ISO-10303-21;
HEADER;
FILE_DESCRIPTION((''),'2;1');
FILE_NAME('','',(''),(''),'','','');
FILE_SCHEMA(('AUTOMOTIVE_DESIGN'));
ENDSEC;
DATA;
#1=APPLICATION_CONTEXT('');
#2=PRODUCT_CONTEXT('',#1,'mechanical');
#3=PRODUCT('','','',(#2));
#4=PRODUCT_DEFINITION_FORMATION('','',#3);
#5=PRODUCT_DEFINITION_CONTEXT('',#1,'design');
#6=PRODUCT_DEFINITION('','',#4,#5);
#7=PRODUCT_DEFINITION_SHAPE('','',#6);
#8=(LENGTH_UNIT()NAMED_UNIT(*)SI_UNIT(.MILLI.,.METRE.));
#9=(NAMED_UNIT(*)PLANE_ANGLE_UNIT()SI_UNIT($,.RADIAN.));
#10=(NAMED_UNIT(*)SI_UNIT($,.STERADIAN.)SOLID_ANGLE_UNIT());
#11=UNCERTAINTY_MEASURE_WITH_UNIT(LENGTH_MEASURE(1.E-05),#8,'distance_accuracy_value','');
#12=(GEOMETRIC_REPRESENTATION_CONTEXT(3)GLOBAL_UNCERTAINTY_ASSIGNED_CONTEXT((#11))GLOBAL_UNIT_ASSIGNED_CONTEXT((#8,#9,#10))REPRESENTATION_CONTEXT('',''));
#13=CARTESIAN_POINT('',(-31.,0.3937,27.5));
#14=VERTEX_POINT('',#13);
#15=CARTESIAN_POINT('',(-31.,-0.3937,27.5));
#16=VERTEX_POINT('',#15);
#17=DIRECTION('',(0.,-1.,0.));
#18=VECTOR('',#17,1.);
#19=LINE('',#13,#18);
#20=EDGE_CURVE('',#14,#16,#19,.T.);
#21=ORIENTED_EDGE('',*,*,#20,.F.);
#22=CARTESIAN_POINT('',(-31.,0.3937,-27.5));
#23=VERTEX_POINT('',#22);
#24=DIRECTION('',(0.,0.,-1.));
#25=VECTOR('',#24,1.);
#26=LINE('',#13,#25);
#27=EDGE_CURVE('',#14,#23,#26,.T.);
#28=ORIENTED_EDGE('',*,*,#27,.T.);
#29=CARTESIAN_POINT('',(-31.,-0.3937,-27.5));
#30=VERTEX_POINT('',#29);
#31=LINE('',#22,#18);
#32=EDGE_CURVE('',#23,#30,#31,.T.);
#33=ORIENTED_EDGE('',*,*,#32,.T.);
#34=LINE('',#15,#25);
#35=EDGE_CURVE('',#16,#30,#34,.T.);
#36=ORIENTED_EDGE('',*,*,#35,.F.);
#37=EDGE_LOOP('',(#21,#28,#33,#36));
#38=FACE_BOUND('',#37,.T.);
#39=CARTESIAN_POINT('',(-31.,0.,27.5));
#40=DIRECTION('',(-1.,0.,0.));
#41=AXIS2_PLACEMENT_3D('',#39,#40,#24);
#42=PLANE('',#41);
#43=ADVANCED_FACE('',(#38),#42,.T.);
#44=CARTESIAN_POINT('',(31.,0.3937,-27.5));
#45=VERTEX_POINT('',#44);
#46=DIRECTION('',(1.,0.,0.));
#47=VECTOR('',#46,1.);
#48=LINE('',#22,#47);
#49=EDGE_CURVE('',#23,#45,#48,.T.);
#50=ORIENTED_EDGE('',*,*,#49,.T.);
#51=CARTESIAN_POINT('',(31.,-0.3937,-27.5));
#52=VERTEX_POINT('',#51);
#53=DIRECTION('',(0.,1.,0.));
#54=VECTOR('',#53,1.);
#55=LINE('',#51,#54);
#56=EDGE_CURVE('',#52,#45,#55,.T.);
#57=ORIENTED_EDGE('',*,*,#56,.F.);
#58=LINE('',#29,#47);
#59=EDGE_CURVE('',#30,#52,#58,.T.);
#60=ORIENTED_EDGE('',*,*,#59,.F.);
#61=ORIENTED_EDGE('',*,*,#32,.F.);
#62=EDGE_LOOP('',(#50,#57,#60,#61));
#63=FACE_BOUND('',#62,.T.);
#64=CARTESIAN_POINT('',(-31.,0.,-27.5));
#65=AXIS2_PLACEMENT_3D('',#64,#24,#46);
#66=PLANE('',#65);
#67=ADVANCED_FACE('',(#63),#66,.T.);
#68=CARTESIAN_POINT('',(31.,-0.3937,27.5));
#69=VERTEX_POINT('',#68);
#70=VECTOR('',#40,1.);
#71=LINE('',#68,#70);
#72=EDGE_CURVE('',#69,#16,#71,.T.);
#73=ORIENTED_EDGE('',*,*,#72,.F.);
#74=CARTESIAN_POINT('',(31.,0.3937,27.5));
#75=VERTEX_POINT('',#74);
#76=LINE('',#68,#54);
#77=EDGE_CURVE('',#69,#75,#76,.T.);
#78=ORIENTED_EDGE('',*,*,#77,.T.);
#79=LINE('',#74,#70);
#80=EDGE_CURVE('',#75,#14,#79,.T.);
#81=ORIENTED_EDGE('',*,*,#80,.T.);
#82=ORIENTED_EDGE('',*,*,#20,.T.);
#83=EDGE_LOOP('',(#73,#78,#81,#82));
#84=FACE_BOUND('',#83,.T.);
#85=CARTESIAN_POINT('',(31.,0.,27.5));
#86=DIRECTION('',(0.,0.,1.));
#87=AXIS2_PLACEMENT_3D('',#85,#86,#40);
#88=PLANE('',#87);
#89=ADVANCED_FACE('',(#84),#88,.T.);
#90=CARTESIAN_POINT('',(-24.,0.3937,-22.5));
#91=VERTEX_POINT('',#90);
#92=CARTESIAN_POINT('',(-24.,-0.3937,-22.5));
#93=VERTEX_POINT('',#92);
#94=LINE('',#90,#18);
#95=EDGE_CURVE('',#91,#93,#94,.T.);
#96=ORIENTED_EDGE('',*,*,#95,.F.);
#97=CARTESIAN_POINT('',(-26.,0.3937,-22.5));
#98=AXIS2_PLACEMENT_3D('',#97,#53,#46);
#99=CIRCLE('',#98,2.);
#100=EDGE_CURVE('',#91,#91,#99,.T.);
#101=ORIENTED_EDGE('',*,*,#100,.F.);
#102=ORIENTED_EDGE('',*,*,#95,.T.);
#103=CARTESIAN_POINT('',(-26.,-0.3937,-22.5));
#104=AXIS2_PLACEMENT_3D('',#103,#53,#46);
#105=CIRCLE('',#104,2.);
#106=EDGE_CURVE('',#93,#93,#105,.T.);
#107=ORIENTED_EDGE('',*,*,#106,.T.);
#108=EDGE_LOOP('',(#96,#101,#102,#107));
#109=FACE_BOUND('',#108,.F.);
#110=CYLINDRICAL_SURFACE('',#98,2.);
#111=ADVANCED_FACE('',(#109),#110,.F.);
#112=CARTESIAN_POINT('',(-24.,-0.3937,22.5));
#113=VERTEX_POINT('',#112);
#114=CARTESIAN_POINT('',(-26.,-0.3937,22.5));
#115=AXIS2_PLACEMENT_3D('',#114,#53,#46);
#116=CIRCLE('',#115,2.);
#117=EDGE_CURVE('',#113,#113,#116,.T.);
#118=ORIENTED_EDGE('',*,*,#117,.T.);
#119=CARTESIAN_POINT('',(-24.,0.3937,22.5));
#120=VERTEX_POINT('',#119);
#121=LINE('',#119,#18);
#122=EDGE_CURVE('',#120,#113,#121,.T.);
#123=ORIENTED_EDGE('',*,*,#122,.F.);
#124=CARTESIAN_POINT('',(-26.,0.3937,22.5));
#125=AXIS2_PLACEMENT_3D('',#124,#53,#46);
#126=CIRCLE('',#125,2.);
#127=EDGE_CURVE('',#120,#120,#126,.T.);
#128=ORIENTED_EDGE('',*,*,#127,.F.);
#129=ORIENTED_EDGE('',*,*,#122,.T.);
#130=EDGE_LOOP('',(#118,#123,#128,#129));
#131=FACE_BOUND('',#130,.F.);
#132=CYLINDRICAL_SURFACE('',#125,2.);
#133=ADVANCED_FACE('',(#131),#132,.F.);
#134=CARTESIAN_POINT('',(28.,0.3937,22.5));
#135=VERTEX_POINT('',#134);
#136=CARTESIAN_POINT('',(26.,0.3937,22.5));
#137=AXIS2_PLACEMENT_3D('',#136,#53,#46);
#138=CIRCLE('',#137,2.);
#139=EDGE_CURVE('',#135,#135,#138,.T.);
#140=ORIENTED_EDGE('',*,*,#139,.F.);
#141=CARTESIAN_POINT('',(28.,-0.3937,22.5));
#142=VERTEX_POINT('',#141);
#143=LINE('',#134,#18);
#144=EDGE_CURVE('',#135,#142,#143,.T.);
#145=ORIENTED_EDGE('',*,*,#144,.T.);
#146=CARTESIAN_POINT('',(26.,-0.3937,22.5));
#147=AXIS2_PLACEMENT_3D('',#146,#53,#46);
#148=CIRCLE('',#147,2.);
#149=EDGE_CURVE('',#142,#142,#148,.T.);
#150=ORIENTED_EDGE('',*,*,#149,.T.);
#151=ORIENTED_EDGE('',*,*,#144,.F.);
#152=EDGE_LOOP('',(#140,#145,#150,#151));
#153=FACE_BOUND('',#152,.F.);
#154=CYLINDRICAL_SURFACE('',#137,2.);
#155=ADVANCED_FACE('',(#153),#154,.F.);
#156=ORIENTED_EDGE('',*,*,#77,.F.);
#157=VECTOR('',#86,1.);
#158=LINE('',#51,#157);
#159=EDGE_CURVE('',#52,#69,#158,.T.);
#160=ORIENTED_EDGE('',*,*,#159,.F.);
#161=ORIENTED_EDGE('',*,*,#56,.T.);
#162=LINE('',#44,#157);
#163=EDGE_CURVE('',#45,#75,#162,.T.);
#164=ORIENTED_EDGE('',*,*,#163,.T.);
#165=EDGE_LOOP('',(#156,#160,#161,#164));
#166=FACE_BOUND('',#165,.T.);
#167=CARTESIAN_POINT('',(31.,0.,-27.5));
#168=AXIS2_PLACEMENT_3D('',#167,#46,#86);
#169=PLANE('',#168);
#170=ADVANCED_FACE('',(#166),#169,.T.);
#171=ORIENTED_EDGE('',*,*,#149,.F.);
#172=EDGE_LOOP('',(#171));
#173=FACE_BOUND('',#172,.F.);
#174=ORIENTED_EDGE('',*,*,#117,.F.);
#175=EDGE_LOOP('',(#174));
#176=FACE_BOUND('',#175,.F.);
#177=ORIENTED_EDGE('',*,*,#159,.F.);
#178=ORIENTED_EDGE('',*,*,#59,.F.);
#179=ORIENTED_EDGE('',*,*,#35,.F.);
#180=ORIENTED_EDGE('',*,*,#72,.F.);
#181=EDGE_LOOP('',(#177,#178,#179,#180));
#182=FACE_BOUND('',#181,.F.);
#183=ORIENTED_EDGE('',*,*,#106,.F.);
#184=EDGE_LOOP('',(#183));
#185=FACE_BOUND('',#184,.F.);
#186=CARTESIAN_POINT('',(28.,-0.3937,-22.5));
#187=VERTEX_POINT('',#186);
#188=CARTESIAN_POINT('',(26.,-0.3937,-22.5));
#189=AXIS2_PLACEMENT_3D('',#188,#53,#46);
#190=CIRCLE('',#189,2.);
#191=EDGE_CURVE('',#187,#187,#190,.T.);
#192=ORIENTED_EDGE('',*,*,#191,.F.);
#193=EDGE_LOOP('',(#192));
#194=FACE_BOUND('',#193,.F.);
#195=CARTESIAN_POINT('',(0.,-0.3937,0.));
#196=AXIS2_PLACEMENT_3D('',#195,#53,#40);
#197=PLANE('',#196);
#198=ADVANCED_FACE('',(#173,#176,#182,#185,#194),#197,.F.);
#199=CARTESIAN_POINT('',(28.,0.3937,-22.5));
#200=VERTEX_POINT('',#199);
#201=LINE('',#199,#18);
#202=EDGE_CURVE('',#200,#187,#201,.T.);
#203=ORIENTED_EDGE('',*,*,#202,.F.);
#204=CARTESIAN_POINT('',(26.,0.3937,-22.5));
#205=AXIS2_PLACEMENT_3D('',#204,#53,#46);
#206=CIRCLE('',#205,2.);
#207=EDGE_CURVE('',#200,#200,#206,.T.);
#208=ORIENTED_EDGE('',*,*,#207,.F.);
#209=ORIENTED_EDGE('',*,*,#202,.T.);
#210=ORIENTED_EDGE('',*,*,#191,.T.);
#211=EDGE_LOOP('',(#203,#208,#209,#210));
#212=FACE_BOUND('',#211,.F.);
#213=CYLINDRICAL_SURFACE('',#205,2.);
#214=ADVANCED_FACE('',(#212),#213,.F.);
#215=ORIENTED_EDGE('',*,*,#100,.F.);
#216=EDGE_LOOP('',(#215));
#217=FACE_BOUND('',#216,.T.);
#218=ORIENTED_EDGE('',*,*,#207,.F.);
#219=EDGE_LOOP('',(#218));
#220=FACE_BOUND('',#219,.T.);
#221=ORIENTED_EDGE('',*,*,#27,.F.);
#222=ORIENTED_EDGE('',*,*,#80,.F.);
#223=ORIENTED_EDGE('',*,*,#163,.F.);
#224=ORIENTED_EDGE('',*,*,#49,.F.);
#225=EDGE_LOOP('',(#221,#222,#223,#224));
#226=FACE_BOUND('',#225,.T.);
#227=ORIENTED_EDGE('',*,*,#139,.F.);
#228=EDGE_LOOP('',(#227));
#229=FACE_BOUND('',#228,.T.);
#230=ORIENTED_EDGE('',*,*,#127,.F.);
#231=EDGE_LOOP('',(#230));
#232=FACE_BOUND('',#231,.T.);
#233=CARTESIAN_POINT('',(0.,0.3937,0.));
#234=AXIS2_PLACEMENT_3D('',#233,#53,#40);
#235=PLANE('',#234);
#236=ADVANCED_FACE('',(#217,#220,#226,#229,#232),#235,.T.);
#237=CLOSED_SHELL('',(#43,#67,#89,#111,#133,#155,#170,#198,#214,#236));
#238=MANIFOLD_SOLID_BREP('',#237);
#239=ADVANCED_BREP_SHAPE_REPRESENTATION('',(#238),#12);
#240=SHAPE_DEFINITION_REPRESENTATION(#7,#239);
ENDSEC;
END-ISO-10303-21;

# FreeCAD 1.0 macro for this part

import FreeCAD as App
import Part
import Sketcher

V = App.Vector
Q = App.Units.Quantity


def add_polygon(sketch, points):
    """Adds a closed chain of lines whose ends are joined by coincident constraints."""
    first, n = sketch.GeometryCount, len(points)
    for a, b in zip(points, points[1:] + points[:1]):
        sketch.addGeometry(Part.LineSegment(App.Vector(*a, 0), App.Vector(*b, 0)), False)
    for i in range(n):
        sketch.addConstraint(Sketcher.Constraint("Coincident", first + i, 2, first + (i + 1) % n, 1))

doc = App.newDocument("Part")
body = doc.addObject("PartDesign::Body", "Body")

# Sketch on XZ plane
sketch1 = body.newObject("Sketcher::SketchObject", "Sketch")
sketch1.AttachmentSupport = (doc.getObject("XZ_Plane"), [""])
sketch1.MapMode = "FlatFace"
add_polygon(sketch1, [(-31, 27.5), (31, 27.5), (31, -27.5), (-31, -27.5)])  # lines 0-3
sketch1.addConstraint([
    Sketcher.Constraint("Horizontal", 0),
    Sketcher.Constraint("Vertical", 1),
    Sketcher.Constraint("Horizontal", 2),
    Sketcher.Constraint("Vertical", 3),
    Sketcher.Constraint("Symmetric", 0, 2, 2, 2, -1, 1),
    Sketcher.Constraint("DistanceX", 0, 1, 0, 2, Q("62 mm")),
    Sketcher.Constraint("DistanceY", 1, 2, 1, 1, Q("55 mm")),
])
pad1 = body.newObject("PartDesign::Pad", "Pad")
pad1.Profile = sketch1
pad1.Length = 0.7874
pad1.Midplane = True

# Sketch on XZ plane
sketch2 = body.newObject("Sketcher::SketchObject", "Sketch001")
sketch2.AttachmentSupport = (doc.getObject("XZ_Plane"), [""])
sketch2.MapMode = "FlatFace"
sketch2.AttachmentOffset = App.Placement(V(0, 0, -0.3937), App.Rotation())
sketch2.addGeometry([
    Part.Circle(V(-26, 22.5, 0), V(0, 0, 1), 2),
    Part.Circle(V(-26, -22.5, 0), V(0, 0, 1), 2),
    Part.Circle(V(26, 22.5, 0), V(0, 0, 1), 2),
    Part.Circle(V(26, -22.5, 0), V(0, 0, 1), 2),
], False)
sketch2.addConstraint([
    Sketcher.Constraint("Equal", 0, 1),
    Sketcher.Constraint("Equal", 1, 2),
    Sketcher.Constraint("Equal", 2, 3),
    Sketcher.Constraint("Symmetric", 1, 3, 2, 3, -1, 1),
    Sketcher.Constraint("Symmetric", 0, 3, 3, 3, -1, 1),
    Sketcher.Constraint("Symmetric", 0, 3, 2, 3, -2),
    Sketcher.Constraint("Diameter", 0, Q("4 mm")),
    Sketcher.Constraint("DistanceX", 0, 3, -1, 1, Q("26 mm")),
    Sketcher.Constraint("DistanceY", 1, 3, 0, 3, Q("45 mm")),
])
pocket1 = body.newObject("PartDesign::Pocket", "Pocket")
pocket1.Profile = sketch2
pocket1.Type = "ThroughAll"
pocket1.Reversed = True

doc.recompute()
